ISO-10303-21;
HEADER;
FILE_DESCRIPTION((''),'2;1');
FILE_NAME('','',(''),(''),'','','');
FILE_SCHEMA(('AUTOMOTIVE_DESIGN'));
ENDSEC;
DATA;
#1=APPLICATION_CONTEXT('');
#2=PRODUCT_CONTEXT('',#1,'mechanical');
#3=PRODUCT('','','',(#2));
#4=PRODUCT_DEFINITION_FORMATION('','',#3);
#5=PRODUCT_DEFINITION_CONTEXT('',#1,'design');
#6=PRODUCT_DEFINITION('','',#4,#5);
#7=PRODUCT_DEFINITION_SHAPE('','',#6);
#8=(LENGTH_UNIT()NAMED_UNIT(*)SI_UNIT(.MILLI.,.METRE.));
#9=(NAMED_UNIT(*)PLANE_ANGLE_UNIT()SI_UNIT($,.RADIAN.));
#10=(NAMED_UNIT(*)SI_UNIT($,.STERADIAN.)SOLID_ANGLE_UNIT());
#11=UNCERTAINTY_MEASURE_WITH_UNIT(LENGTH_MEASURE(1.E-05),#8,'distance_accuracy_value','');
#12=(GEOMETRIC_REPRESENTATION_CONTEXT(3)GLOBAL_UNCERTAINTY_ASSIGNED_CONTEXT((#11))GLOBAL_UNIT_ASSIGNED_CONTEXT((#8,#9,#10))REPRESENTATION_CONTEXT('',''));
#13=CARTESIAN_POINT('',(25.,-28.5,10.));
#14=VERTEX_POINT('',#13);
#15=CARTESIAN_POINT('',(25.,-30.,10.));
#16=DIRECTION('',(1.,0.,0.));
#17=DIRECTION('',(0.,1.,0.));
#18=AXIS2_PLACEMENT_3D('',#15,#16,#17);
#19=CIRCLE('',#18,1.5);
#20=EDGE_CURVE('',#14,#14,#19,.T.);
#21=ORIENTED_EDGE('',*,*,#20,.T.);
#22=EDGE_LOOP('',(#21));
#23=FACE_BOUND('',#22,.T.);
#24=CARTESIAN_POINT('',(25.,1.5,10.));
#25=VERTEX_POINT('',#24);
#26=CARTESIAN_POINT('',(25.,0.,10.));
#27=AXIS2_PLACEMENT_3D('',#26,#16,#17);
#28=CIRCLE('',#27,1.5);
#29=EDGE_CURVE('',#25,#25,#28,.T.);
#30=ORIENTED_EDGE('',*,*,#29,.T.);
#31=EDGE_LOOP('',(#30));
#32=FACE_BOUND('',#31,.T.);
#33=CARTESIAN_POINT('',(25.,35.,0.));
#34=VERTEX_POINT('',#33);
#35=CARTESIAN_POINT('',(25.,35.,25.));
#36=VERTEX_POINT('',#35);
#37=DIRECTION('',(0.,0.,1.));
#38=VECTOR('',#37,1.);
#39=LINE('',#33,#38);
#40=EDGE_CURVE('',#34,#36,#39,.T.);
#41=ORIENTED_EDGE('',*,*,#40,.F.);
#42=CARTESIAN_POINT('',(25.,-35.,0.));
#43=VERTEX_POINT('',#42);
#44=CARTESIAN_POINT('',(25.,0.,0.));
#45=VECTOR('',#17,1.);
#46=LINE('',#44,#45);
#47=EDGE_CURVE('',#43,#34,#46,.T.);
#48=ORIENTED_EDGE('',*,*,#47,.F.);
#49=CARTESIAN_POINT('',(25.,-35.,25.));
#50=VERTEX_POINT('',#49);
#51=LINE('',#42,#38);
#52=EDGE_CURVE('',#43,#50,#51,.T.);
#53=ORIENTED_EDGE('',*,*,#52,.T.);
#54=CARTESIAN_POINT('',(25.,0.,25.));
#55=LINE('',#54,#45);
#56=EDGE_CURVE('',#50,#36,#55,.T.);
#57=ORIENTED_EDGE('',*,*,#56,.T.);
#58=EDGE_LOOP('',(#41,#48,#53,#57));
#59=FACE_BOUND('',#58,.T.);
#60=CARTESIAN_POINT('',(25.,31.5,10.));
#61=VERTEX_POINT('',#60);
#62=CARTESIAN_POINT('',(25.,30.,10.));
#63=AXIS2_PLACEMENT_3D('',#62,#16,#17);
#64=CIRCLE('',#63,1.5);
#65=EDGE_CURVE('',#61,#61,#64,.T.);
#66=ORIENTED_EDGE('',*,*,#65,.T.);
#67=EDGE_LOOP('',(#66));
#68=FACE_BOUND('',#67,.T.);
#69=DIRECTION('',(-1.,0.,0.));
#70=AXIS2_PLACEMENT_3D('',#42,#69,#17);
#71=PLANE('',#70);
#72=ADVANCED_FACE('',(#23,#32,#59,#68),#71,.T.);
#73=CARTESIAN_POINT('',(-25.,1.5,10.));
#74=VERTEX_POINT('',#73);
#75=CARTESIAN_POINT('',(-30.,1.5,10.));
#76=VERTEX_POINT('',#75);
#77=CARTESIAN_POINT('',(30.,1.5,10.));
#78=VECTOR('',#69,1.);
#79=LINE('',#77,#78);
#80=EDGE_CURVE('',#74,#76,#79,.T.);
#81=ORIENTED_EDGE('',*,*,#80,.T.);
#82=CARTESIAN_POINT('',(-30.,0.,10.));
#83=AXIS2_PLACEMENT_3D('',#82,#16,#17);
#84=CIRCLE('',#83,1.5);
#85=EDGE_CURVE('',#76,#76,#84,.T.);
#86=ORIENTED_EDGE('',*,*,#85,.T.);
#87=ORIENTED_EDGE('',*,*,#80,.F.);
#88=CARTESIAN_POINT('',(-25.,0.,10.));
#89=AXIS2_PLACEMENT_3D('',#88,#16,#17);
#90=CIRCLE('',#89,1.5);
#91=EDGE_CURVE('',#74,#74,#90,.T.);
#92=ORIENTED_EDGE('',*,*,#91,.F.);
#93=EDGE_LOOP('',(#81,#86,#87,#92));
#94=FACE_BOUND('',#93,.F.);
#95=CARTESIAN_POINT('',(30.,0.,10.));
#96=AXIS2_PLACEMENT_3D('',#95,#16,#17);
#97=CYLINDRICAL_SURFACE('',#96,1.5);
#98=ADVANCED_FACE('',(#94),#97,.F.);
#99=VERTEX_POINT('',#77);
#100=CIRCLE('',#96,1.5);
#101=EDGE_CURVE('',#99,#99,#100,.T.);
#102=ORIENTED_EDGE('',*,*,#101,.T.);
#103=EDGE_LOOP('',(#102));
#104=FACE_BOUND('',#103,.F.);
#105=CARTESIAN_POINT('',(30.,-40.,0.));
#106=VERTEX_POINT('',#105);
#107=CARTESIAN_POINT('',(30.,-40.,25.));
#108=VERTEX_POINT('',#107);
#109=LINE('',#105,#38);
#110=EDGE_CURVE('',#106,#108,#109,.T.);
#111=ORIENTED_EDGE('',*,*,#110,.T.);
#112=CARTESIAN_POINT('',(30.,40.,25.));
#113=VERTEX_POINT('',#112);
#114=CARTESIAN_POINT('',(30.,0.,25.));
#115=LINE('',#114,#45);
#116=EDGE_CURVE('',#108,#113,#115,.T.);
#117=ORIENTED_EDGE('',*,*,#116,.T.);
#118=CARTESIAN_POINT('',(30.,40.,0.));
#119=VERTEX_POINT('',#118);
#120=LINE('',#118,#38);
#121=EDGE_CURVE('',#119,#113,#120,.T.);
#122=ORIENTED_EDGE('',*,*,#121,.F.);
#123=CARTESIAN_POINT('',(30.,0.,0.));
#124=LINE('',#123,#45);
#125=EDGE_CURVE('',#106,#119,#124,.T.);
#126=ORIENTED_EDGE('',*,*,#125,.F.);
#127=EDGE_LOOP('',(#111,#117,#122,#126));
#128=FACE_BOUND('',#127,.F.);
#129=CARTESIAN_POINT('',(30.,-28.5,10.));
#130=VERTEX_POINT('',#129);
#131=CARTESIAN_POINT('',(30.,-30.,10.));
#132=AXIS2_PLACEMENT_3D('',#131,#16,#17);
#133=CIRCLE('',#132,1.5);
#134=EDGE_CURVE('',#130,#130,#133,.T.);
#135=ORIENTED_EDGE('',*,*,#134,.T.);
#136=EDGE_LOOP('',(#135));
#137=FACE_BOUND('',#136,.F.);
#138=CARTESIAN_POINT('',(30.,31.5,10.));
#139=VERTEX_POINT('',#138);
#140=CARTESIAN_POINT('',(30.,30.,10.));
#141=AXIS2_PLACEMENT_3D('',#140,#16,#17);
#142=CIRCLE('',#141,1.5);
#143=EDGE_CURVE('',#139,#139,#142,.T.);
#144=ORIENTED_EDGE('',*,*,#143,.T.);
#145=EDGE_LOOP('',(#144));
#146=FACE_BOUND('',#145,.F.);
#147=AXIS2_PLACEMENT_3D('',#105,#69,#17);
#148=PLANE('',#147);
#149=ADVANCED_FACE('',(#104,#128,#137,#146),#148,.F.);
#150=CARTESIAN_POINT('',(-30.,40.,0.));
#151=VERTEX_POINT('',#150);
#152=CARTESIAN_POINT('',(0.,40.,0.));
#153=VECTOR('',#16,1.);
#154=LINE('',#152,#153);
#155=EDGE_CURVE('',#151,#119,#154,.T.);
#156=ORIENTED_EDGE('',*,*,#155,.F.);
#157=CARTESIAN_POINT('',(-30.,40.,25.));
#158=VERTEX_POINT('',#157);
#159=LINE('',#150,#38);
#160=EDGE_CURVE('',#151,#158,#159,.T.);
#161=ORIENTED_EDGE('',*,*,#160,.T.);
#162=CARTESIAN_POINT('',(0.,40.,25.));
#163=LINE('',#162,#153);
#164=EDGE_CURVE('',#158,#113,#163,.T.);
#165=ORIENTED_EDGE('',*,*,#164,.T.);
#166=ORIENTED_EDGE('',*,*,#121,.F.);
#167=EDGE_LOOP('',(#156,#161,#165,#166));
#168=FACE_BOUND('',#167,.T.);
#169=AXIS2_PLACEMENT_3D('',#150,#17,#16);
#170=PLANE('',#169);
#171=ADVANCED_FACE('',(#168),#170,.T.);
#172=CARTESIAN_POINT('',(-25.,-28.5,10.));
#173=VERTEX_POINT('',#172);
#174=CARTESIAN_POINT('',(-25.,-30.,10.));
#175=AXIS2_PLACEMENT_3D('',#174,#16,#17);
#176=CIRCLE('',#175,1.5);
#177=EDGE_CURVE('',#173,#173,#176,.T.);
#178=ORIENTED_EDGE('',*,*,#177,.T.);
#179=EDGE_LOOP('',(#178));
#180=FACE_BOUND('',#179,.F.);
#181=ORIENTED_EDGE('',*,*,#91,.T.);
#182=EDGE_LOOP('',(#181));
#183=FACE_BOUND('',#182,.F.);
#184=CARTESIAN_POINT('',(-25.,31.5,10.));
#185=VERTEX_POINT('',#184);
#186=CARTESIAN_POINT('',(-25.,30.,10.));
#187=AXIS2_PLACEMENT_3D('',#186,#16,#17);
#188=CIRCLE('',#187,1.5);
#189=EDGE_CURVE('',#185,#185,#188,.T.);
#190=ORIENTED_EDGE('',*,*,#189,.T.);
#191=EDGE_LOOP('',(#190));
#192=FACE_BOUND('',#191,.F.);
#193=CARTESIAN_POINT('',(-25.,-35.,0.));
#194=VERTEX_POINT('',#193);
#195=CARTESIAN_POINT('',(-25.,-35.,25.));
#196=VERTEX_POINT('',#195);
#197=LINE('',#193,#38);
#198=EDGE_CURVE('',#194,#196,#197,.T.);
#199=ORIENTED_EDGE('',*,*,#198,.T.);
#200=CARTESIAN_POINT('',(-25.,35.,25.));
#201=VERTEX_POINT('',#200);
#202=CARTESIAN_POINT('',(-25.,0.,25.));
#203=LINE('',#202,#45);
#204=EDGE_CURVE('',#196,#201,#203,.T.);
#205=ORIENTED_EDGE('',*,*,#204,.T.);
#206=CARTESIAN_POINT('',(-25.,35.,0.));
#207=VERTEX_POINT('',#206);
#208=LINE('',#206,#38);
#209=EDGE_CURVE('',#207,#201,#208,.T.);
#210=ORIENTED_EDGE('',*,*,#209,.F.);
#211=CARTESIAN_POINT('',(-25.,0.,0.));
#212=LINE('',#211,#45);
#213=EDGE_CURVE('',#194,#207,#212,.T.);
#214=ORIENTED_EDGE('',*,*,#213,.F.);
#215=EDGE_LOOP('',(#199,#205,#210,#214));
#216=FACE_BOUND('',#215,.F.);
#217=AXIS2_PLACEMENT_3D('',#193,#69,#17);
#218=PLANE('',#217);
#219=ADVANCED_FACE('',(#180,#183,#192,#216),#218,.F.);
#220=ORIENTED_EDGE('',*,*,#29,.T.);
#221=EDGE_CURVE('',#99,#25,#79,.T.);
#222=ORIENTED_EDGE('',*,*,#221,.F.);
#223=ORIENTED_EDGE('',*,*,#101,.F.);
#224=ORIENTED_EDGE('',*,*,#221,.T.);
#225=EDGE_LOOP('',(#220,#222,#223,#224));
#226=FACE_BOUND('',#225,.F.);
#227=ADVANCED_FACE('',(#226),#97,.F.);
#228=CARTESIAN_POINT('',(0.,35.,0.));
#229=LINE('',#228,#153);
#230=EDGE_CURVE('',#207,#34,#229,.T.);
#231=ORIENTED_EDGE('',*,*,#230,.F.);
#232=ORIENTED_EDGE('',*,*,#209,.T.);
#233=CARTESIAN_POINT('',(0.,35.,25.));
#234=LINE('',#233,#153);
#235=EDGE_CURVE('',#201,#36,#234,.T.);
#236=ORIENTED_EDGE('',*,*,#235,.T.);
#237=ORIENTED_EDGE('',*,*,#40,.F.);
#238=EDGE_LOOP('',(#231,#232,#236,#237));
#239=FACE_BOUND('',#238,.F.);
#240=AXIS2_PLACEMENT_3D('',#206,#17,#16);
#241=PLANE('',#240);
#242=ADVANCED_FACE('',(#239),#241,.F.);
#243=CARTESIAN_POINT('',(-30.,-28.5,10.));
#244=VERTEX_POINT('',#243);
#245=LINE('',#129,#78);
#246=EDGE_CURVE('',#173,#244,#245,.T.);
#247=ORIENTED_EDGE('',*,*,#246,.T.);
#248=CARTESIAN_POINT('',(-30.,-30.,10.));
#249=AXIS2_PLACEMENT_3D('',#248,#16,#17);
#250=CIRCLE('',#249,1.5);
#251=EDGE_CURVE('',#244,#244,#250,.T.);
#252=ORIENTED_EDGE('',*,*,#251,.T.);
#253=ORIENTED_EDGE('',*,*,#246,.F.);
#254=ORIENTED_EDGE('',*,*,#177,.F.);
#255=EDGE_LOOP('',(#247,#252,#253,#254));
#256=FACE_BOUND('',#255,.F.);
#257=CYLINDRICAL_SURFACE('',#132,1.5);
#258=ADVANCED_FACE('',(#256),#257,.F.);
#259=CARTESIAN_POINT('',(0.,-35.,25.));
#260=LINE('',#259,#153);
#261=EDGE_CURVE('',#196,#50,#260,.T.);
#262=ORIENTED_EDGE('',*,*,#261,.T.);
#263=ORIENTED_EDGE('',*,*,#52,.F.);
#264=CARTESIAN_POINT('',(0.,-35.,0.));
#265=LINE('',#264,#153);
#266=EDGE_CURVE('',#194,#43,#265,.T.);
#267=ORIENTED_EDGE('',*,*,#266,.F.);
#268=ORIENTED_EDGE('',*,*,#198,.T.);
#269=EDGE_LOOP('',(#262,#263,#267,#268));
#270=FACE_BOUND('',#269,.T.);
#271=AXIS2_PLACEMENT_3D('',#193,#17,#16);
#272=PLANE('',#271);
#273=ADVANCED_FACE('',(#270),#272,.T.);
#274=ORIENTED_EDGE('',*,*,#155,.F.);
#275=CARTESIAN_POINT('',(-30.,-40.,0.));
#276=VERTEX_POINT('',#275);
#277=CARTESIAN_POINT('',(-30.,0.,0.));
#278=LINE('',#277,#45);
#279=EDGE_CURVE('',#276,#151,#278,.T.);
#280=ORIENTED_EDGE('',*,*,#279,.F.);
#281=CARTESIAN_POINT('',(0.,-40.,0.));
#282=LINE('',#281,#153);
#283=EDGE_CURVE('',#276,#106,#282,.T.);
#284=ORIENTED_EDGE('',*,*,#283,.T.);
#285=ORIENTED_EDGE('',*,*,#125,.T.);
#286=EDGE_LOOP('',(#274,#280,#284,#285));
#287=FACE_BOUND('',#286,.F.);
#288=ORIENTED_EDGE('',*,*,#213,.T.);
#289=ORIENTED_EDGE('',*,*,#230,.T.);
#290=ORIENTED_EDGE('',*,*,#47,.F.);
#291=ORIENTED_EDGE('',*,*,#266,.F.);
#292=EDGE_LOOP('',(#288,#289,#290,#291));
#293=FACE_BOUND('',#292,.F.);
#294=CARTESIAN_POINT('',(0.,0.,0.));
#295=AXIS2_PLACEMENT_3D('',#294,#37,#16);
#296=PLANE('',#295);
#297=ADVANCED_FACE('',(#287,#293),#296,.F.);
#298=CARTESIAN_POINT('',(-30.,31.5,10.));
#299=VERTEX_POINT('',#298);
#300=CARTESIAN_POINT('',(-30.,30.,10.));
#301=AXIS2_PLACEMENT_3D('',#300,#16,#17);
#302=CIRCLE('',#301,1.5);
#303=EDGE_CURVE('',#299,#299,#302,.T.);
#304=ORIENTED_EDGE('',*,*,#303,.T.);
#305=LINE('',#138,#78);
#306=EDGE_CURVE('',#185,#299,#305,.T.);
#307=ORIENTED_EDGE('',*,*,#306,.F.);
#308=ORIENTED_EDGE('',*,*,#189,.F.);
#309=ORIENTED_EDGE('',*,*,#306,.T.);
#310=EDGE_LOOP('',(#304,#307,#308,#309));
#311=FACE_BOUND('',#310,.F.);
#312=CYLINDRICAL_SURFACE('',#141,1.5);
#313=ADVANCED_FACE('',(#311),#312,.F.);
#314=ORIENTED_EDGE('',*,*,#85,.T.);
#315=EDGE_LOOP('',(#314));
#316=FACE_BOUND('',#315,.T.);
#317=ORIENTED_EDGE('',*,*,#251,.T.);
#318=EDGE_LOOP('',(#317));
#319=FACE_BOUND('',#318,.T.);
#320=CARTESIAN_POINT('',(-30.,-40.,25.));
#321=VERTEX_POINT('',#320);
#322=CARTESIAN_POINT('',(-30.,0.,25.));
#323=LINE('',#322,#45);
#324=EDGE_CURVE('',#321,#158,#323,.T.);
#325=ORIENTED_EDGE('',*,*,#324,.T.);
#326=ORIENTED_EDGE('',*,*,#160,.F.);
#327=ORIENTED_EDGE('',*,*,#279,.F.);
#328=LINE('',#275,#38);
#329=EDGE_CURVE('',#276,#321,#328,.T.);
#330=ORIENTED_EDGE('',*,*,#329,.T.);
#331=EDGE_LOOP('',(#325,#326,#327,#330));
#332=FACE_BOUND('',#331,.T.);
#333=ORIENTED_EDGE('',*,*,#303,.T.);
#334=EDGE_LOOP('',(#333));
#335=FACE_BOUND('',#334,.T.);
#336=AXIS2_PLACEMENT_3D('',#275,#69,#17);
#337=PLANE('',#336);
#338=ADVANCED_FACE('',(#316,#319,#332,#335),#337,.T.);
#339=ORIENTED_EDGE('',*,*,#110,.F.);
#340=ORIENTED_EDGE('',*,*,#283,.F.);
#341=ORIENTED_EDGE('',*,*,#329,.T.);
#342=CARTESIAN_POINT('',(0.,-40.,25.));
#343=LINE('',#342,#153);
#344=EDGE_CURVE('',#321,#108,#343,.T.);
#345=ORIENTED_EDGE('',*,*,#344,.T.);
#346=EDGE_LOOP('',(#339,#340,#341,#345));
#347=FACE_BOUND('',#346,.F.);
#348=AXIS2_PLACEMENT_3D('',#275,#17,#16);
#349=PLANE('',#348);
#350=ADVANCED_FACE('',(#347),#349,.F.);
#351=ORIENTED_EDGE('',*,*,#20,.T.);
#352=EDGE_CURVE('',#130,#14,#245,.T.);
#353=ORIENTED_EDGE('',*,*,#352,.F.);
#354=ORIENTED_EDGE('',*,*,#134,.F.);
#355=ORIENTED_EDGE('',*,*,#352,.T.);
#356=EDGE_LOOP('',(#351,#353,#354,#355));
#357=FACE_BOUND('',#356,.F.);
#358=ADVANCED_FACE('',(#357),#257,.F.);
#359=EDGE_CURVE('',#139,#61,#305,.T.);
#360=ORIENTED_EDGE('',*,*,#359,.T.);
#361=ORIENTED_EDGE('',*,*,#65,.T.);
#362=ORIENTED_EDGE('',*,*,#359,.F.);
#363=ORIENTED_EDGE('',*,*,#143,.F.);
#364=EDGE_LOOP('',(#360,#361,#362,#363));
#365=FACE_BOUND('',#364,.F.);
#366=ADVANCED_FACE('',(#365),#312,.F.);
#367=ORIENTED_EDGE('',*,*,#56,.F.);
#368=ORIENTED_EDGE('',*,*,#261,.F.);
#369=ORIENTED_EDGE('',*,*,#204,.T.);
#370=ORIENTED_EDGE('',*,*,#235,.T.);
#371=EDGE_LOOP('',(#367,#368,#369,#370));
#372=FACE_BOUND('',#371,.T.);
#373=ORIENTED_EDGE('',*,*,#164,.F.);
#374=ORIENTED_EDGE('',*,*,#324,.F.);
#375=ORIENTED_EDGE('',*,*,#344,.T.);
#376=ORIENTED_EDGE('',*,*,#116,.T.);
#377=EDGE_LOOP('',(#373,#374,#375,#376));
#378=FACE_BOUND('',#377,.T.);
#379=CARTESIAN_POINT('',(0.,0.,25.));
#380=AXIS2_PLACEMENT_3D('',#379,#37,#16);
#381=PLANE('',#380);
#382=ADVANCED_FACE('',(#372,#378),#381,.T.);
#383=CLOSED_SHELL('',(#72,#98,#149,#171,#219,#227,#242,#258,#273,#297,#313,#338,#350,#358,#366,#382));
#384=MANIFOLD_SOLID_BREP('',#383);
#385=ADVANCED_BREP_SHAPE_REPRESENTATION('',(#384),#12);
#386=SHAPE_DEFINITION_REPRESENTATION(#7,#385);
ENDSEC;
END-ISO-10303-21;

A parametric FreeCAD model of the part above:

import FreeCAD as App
import Part
import Sketcher
from FreeCAD import Vector


def add_polygon(sketch, points):
    """Adds a closed chain of lines whose ends are joined by coincident constraints."""
    first, n = sketch.GeometryCount, len(points)
    for a, b in zip(points, points[1:] + points[:1]):
        sketch.addGeometry(Part.LineSegment(App.Vector(*a, 0), App.Vector(*b, 0)), False)
    for i in range(n):
        sketch.addConstraint(Sketcher.Constraint("Coincident", first + i, 2, first + (i + 1) % n, 1))

doc = App.newDocument("Part")
params = doc.addObject("Spreadsheet::Sheet", "Params")
for row, (alias, value) in enumerate([
    ("sketch1_width", "60 mm"),
    ("sketch1_width2", "50 mm"),
    ("sketch1_height", "80 mm"),
    ("sketch1_height2", "70 mm"),
    ("pad1_length", "25 mm"),
    ("sketch2_diameter", "3 mm"),
], start=1):
    params.set(f"A{row}", alias)
    params.set(f"B{row}", "=" + value)
    params.setAlias(f"B{row}", alias)

body = doc.addObject("PartDesign::Body", "Body")

# Sketch on XY plane
sketch1 = body.newObject("Sketcher::SketchObject", "Sketch")
sketch1.AttachmentSupport = (doc.getObject("XY_Plane"), [""])
sketch1.MapMode = "FlatFace"
add_polygon(sketch1, [(-30, 40), (-30, -40), (30, -40), (30, 40)])  # lines 0-3
add_polygon(sketch1, [(25, -35), (-25, -35), (-25, 35), (25, 35)])  # lines 4-7
sketch1.addConstraint([
    Sketcher.Constraint("Vertical", 0),
    Sketcher.Constraint("Horizontal", 1),
    Sketcher.Constraint("Vertical", 2),
    Sketcher.Constraint("Horizontal", 3),
    Sketcher.Constraint("Horizontal", 4),
    Sketcher.Constraint("Vertical", 5),
    Sketcher.Constraint("Horizontal", 6),
    Sketcher.Constraint("Vertical", 7),
    Sketcher.Constraint("Symmetric", 0, 2, 2, 2, -1, 1),
    Sketcher.Constraint("Symmetric", 4, 2, 6, 2, -1, 1),
    Sketcher.Constraint("DistanceX", 1, 1, 1, 2, 60.0),
    Sketcher.Constraint("DistanceX", 4, 2, 4, 1, 50.0),
    Sketcher.Constraint("DistanceY", 0, 2, 0, 1, 80.0),
    Sketcher.Constraint("DistanceY", 5, 1, 5, 2, 70.0),
])
sketch1.setExpression("Constraints[18]", "Params.sketch1_width")
sketch1.setExpression("Constraints[19]", "Params.sketch1_width2")
sketch1.setExpression("Constraints[20]", "Params.sketch1_height")
sketch1.setExpression("Constraints[21]", "Params.sketch1_height2")
pad1 = body.newObject("PartDesign::Pad", "Pad")
pad1.Profile = sketch1
pad1.setExpression("Length", "Params.pad1_length")

# Sketch on YZ plane
sketch2 = body.newObject("Sketcher::SketchObject", "Sketch001")
sketch2.AttachmentSupport = (doc.getObject("YZ_Plane"), [""])
sketch2.MapMode = "FlatFace"
sketch2.AttachmentOffset = App.Placement(Vector(0, 0, 30), App.Rotation())
sketch2.addGeometry([
    Part.Circle(Vector(-30, 10, 0), Vector(0, 0, 1), 1.5),
    Part.Circle(Vector(0, 10, 0), Vector(0, 0, 1), 1.5),
    Part.Circle(Vector(30, 10, 0), Vector(0, 0, 1), 1.5),
], False)
sketch2.addConstraint([
    Sketcher.Constraint("Equal", 0, 1),
    Sketcher.Constraint("Equal", 1, 2),
    Sketcher.Constraint("Symmetric", 0, 3, 2, 3, -2),
    Sketcher.Constraint("PointOnObject", 1, 3, -2),
    Sketcher.Constraint("Horizontal", 0, 3, 1, 3),
    Sketcher.Constraint("Diameter", 0, 3.0),
    Sketcher.Constraint("DistanceX", 0, 3, -1, 1, 30.0),
    Sketcher.Constraint("DistanceY", -1, 1, 0, 3, 10.0),
])
sketch2.setExpression("Constraints[5]", "Params.sketch2_diameter")
pocket1 = body.newObject("PartDesign::Pocket", "Pocket")
pocket1.Profile = sketch2
pocket1.Type = "ThroughAll"

doc.recompute()
